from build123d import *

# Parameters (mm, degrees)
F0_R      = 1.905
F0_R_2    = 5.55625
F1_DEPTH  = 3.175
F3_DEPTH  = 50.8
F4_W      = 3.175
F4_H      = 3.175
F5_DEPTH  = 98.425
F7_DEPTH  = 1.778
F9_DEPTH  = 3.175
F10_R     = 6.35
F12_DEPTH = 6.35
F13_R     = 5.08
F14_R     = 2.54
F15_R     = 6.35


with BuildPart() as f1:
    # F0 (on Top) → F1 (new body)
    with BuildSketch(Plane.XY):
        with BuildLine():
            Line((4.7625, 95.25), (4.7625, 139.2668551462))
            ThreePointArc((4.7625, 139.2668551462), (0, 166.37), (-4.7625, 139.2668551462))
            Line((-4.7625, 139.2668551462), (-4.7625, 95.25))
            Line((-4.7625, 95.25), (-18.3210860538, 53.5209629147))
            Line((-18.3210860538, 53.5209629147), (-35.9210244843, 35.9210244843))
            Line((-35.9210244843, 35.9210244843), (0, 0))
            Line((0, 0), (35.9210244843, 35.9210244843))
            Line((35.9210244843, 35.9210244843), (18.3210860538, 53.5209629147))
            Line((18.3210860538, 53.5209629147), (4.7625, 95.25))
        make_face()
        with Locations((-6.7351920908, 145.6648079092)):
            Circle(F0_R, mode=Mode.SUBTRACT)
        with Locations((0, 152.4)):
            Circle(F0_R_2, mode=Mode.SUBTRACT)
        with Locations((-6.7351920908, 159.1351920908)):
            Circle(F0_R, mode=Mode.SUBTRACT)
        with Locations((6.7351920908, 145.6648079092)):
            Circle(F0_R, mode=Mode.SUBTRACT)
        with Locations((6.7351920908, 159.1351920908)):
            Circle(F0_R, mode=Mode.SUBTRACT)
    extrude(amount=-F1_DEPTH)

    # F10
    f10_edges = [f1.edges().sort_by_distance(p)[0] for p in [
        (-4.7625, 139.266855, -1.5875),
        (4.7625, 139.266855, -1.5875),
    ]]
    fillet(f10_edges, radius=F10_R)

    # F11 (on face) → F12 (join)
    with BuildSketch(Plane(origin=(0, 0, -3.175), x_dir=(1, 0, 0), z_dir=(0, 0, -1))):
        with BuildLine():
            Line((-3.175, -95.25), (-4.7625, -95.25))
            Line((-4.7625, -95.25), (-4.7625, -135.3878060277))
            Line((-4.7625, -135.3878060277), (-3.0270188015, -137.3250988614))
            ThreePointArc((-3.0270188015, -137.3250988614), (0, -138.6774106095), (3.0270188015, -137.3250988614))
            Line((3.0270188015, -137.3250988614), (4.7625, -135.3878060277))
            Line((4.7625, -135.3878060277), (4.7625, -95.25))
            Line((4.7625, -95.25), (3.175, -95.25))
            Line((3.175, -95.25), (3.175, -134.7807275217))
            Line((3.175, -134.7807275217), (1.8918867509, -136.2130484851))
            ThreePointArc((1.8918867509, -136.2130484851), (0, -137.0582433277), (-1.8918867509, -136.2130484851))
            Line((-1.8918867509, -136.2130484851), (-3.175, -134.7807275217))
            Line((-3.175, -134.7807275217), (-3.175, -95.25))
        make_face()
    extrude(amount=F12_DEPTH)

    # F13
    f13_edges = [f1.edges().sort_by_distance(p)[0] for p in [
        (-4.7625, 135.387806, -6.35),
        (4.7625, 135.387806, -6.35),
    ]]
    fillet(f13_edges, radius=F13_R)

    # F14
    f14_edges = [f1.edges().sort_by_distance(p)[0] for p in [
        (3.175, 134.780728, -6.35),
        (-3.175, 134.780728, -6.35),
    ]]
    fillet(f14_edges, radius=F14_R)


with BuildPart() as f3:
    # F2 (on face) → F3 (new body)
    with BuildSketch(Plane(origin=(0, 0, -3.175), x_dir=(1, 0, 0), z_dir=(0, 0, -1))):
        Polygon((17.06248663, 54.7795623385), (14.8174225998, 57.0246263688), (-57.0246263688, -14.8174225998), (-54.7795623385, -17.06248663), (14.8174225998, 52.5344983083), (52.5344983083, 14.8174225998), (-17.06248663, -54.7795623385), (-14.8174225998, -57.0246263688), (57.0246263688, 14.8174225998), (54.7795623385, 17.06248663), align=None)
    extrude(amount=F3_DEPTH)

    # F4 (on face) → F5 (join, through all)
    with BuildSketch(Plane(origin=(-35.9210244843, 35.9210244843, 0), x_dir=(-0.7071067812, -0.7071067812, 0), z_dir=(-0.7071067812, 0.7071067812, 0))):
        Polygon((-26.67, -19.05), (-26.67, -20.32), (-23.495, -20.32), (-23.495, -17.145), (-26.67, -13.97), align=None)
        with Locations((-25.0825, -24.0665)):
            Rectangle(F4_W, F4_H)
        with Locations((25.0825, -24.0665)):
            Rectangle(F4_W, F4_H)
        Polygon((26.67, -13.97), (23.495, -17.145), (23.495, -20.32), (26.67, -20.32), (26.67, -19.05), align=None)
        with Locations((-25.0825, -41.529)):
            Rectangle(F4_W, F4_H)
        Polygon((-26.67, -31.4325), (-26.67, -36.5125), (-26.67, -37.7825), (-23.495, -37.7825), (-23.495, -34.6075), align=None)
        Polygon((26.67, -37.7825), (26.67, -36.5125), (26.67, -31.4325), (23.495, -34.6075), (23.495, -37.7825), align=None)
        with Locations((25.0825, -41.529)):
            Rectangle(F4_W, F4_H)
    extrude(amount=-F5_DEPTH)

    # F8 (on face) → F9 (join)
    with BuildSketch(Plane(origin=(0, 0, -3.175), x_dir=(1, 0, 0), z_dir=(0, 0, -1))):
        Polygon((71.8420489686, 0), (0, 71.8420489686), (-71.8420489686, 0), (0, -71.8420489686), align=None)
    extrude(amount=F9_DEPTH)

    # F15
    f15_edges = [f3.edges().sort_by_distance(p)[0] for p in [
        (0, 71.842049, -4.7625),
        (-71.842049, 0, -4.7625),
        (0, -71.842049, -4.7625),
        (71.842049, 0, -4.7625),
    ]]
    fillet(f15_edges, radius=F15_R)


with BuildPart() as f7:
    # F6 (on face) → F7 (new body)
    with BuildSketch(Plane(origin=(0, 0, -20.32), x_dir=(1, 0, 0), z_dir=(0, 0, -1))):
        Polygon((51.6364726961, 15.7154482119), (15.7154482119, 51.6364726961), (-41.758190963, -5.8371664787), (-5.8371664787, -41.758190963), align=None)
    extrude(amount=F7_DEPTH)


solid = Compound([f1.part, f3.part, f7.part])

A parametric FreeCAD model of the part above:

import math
import FreeCAD as App
import Part
import Sketcher
Q = App.Units.Quantity


def edges_at(feature, points):
    """Names of the edges that pass closest to the given points."""
    edges = feature.Shape.Edges
    near = lambda p: min(range(len(edges)), key=lambda i: edges[i].distToShape(Part.Vertex(*p))[0])
    return sorted({f"Edge{near(p) + 1}" for p in points})

doc = App.newDocument("Part")
body = doc.addObject("PartDesign::Body", "Body")

# Sketch on XY plane
sketch1 = body.newObject("Sketcher::SketchObject", "Sketch")
sketch1.AttachmentSupport = (doc.getObject("XY_Plane"), [""])
sketch1.MapMode = "FlatFace"
sketch1.addGeometry([
    Part.LineSegment(App.Vector(4.8, 95.2, 0), App.Vector(4.8, 139.3, 0)),  # 0
    Part.ArcOfCircle(Part.Circle(App.Vector(0, 152.4, 0), App.Vector(0, 0, 1), 14), math.radians(-70), math.radians(250)),  # 1
    Part.LineSegment(App.Vector(-4.8, 139.3, 0), App.Vector(-4.8, 95.2, 0)),  # 2
    Part.LineSegment(App.Vector(-4.8, 95.2, 0), App.Vector(-18.3, 53.5, 0)),  # 3
    Part.LineSegment(App.Vector(-18.3, 53.5, 0), App.Vector(-35.9, 35.9, 0)),  # 4
    Part.LineSegment(App.Vector(-35.9, 35.9, 0), App.Vector(0, 0, 0)),  # 5
    Part.LineSegment(App.Vector(0, 0, 0), App.Vector(35.9, 35.9, 0)),  # 6
    Part.LineSegment(App.Vector(35.9, 35.9, 0), App.Vector(18.3, 53.5, 0)),  # 7
    Part.LineSegment(App.Vector(18.3, 53.5, 0), App.Vector(4.8, 95.2, 0)),  # 8
    Part.Circle(App.Vector(-6.7, 145.7, 0), App.Vector(0, 0, 1), 1.9),  # 9
    Part.Circle(App.Vector(6.7, 145.7, 0), App.Vector(0, 0, 1), 1.9),  # 10
    Part.Circle(App.Vector(-6.7, 159.1, 0), App.Vector(0, 0, 1), 1.9),  # 11
    Part.Circle(App.Vector(0, 152.4, 0), App.Vector(0, 0, 1), 5.6),  # 12
    Part.Circle(App.Vector(6.7, 159.1, 0), App.Vector(0, 0, 1), 1.9),  # 13
], False)
sketch1.addConstraint([
    Sketcher.Constraint("Coincident", 0, 2, 1, 1),
    Sketcher.Constraint("Coincident", 1, 2, 2, 1),
    Sketcher.Constraint("Coincident", 2, 2, 3, 1),
    Sketcher.Constraint("Coincident", 3, 2, 4, 1),
    Sketcher.Constraint("Coincident", 4, 2, 5, 1),
    Sketcher.Constraint("Coincident", 5, 2, 6, 1),
    Sketcher.Constraint("Coincident", 6, 2, 7, 1),
    Sketcher.Constraint("Coincident", 7, 2, 8, 1),
    Sketcher.Constraint("Coincident", 8, 2, 0, 1),
    Sketcher.Constraint("Vertical", 0),
    Sketcher.Constraint("Vertical", 2),
    Sketcher.Constraint("Coincident", 5, 2, -1, 1),
    Sketcher.Constraint("Coincident", 12, 3, 1, 3),
    Sketcher.Constraint("Equal", 9, 10),
    Sketcher.Constraint("Equal", 10, 11),
    Sketcher.Constraint("Equal", 11, 13),
    Sketcher.Constraint("Symmetric", 9, 3, 10, 3, -2),
    Sketcher.Constraint("Symmetric", 11, 3, 13, 3, -2),
    Sketcher.Constraint("Symmetric", 0, 2, 1, 2, -2),
    Sketcher.Constraint("Symmetric", 4, 2, 6, 2, -2),
    Sketcher.Constraint("Symmetric", 3, 2, 7, 2, -2),
    Sketcher.Constraint("Perpendicular", 4, 5),
    Sketcher.Constraint("Perpendicular", 5, 6),
    Sketcher.Constraint("Horizontal", 2, 2, 8, 2),
    Sketcher.Constraint("Vertical", 9, 3, 11, 3),
    Sketcher.Constraint("Diameter", 9, Q("0.15 in")),
    Sketcher.Constraint("Radius", 1, Q("0.55 in")),
    Sketcher.Constraint("Distance", 5, Q("2 in")),
    Sketcher.Constraint("Diameter", 12, Q("0.4375 in")),
    Sketcher.Constraint("DistanceY", -1, 1, 1, 3, Q("6 in")),
    Sketcher.Constraint("Angle", 3, Q("-108 deg")),
    Sketcher.Constraint("DistanceY", -1, 1, 2, 2, Q("3.75 in")),
    Sketcher.Constraint("DistanceX", -1, 1, 0, 2, Q("0.1875 in")),
    Sketcher.Constraint("DistanceX", 3, 2, 10, 3, 25.056278),
    Sketcher.Constraint("DistanceY", -1, 1, 9, 3, 145.664808),
    Sketcher.Constraint("DistanceY", -1, 1, 11, 3, 159.135192),
])
pad1 = body.newObject("PartDesign::Pad", "Pad")
pad1.Profile = sketch1
pad1.Length = Q("0.125 in")
pad1.Reversed = True
doc.recompute()

fillet = body.newObject("PartDesign::Fillet", "Fillet")
fillet.Base = (pad1, edges_at(pad1, [(-4.763, 139.267, -1.587), (4.763, 139.267, -1.587)]))
fillet.Radius = Q("0.25 in")

# Sketch on XY plane
sketch2 = body.newObject("Sketcher::SketchObject", "Sketch001")
sketch2.AttachmentSupport = (doc.getObject("XY_Plane"), [""])
sketch2.MapMode = "FlatFace"
sketch2.AttachmentOffset = App.Placement(App.Vector(0, 0, -0.125 * 25.4), App.Rotation())
sketch2.addGeometry([
    Part.LineSegment(App.Vector(-3.2, 95.2, 0), App.Vector(-4.8, 95.2, 0)),  # 0
    Part.LineSegment(App.Vector(-4.8, 95.2, 0), App.Vector(-4.8, 135.4, 0)),  # 1
    Part.LineSegment(App.Vector(-4.8, 135.4, 0), App.Vector(-3, 137.3, 0)),  # 2
    Part.ArcOfCircle(Part.Circle(App.Vector(0, 134.6, 0), App.Vector(0, 0, 1), 4.1), math.radians(42), math.radians(138)),  # 3
    Part.LineSegment(App.Vector(3, 137.3, 0), App.Vector(4.8, 135.4, 0)),  # 4
    Part.LineSegment(App.Vector(4.8, 135.4, 0), App.Vector(4.8, 95.2, 0)),  # 5
    Part.LineSegment(App.Vector(4.8, 95.2, 0), App.Vector(3.2, 95.2, 0)),  # 6
    Part.LineSegment(App.Vector(3.2, 95.2, 0), App.Vector(3.2, 134.8, 0)),  # 7
    Part.LineSegment(App.Vector(3.2, 134.8, 0), App.Vector(1.9, 136.2, 0)),  # 8
    Part.ArcOfCircle(Part.Circle(App.Vector(0, 134.5, 0), App.Vector(0, 0, 1), 2.5), math.radians(42), math.radians(138)),  # 9
    Part.LineSegment(App.Vector(-1.9, 136.2, 0), App.Vector(-3.2, 134.8, 0)),  # 10
    Part.LineSegment(App.Vector(-3.2, 134.8, 0), App.Vector(-3.2, 95.2, 0)),  # 11
], False)
sketch2.addConstraint([
    Sketcher.Constraint("Coincident", 0, 2, 1, 1),
    Sketcher.Constraint("Coincident", 1, 2, 2, 1),
    Sketcher.Constraint("Tangent", 2, 2, 3, 2),
    Sketcher.Constraint("Tangent", 3, 1, 4, 1),
    Sketcher.Constraint("Coincident", 4, 2, 5, 1),
    Sketcher.Constraint("Coincident", 5, 2, 6, 1),
    Sketcher.Constraint("Coincident", 6, 2, 7, 1),
    Sketcher.Constraint("Coincident", 7, 2, 8, 1),
    Sketcher.Constraint("Tangent", 8, 2, 9, 1),
    Sketcher.Constraint("Tangent", 9, 2, 10, 1),
    Sketcher.Constraint("Coincident", 10, 2, 11, 1),
    Sketcher.Constraint("Coincident", 11, 2, 0, 1),
    Sketcher.Constraint("Horizontal", 0),
    Sketcher.Constraint("Vertical", 1),
    Sketcher.Constraint("Vertical", 5),
    Sketcher.Constraint("Horizontal", 6),
    Sketcher.Constraint("Vertical", 7),
    Sketcher.Constraint("Vertical", 11),
    Sketcher.Constraint("Symmetric", 2, 2, 3, 1, -2),
    Sketcher.Constraint("Symmetric", 0, 2, 5, 2, -2),
    Sketcher.Constraint("Symmetric", 8, 2, 9, 2, -2),
    Sketcher.Constraint("Parallel", 4, 8),
    Sketcher.Constraint("Horizontal", 7, 2, 10, 2),
    Sketcher.Constraint("Radius", 9, Q("0.1 in")),
    Sketcher.Constraint("Radius", 3, Q("0.16 in")),
    Sketcher.Constraint("DistanceX", 0, 2, 0, 1, Q("0.0625 in")),
    Sketcher.Constraint("DistanceY", -1, 1, 0, 2, Q("3.75 in")),
    Sketcher.Constraint("DistanceX", 11, 2, 6, 2, Q("0.25 in")),
    Sketcher.Constraint("Distance", 2, Q("0.1024 in")),
    Sketcher.Constraint("DistanceY", -1, 1, 2, 2, Q("5.4065 in")),
    Sketcher.Constraint("DistanceY", 7, 1, 7, 2, 39.530728),
])
pad2 = body.newObject("PartDesign::Pad", "Pad001")
pad2.Profile = sketch2
pad2.Length = Q("0.25 in")
pad2.Reversed = True
doc.recompute()

fillet2 = body.newObject("PartDesign::Fillet", "Fillet001")
fillet2.Base = (pad2, edges_at(pad2, [(-4.763, 135.388, -6.35), (4.763, 135.388, -6.35)]))
fillet2.Radius = Q("0.2 in")
doc.recompute()

fillet3 = body.newObject("PartDesign::Fillet", "Fillet002")
fillet3.Base = (fillet2, edges_at(fillet2, [(3.175, 134.781, -6.35), (-3.175, 134.781, -6.35)]))
fillet3.Radius = Q("0.1 in")
body2 = doc.addObject("PartDesign::Body", "Body001")

# Sketch on XY plane
sketch3 = body2.newObject("Sketcher::SketchObject", "Sketch002")
sketch3.AttachmentSupport = (doc.getObject("XY_Plane001"), [""])
sketch3.MapMode = "FlatFace"
sketch3.AttachmentOffset = App.Placement(App.Vector(0, 0, -0.125 * 25.4), App.Rotation())
sketch3.addGeometry([
    Part.LineSegment(App.Vector(17.1, -54.8, 0), App.Vector(14.8, -57, 0)),  # 0
    Part.LineSegment(App.Vector(14.8, -57, 0), App.Vector(-57, 14.8, 0)),  # 1
    Part.LineSegment(App.Vector(-57, 14.8, 0), App.Vector(-54.8, 17.1, 0)),  # 2
    Part.LineSegment(App.Vector(-54.8, 17.1, 0), App.Vector(14.8, -52.5, 0)),  # 3
    Part.LineSegment(App.Vector(14.8, -52.5, 0), App.Vector(52.5, -14.8, 0)),  # 4
    Part.LineSegment(App.Vector(52.5, -14.8, 0), App.Vector(-17.1, 54.8, 0)),  # 5
    Part.LineSegment(App.Vector(-17.1, 54.8, 0), App.Vector(-14.8, 57, 0)),  # 6
    Part.LineSegment(App.Vector(-14.8, 57, 0), App.Vector(57, -14.8, 0)),  # 7
    Part.LineSegment(App.Vector(57, -14.8, 0), App.Vector(54.8, -17.1, 0)),  # 8
    Part.LineSegment(App.Vector(54.8, -17.1, 0), App.Vector(17.1, -54.8, 0)),  # 9
], False)
sketch3.addConstraint([
    Sketcher.Constraint("Coincident", 0, 2, 1, 1),
    Sketcher.Constraint("Coincident", 1, 2, 2, 1),
    Sketcher.Constraint("Coincident", 2, 2, 3, 1),
    Sketcher.Constraint("Coincident", 3, 2, 4, 1),
    Sketcher.Constraint("Coincident", 4, 2, 5, 1),
    Sketcher.Constraint("Coincident", 5, 2, 6, 1),
    Sketcher.Constraint("Coincident", 6, 2, 7, 1),
    Sketcher.Constraint("Coincident", 7, 2, 8, 1),
    Sketcher.Constraint("Coincident", 8, 2, 9, 1),
    Sketcher.Constraint("Coincident", 9, 2, 0, 1),
    Sketcher.Constraint("Symmetric", 0, 2, 6, 2, -1, 1),
    Sketcher.Constraint("Symmetric", 1, 2, 7, 2, -1, 1),
    Sketcher.Constraint("Symmetric", 2, 2, 8, 2, -1, 1),
    Sketcher.Constraint("Symmetric", 5, 2, 9, 2, -1, 1),
    Sketcher.Constraint("Perpendicular", 0, 1),
    Sketcher.Constraint("Perpendicular", 1, 2),
    Sketcher.Constraint("Perpendicular", 2, 3),
    Sketcher.Constraint("Perpendicular", 3, 4),
    Sketcher.Constraint("Perpendicular", 4, 5),
    Sketcher.Constraint("Parallel", 8, 9),
    Sketcher.Constraint("Horizontal", 4, 2, 7, 2),
    Sketcher.Constraint("Vertical", 0, 2, 3, 2),
    Sketcher.Constraint("Equal", 0, 2),
    Sketcher.Constraint("Distance", 1, Q("4 in")),
    Sketcher.Constraint("Distance", 4, Q("2.1 in")),
    Sketcher.Constraint("Distance", 0, Q("0.125 in")),
])
pad3 = body2.newObject("PartDesign::Pad", "Pad002")
pad3.Profile = sketch3
pad3.Length = Q("2 in")
pad3.Reversed = True

# Sketch on an angled plane
sketch4 = body2.newObject("Sketcher::SketchObject", "Sketch003")
sketch4.Placement = App.Placement(App.Vector(-35.921024, 35.921024, 0), App.Rotation(App.Vector(-0.707106781, -0.707106781, 0), App.Vector(0, 0, 0.999999999), App.Vector(-0.707106781, 0.707106781, 0), "ZXY"))
sketch4.addGeometry([
    Part.LineSegment(App.Vector(-26.7, -20.3, 0), App.Vector(-23.5, -20.3, 0)),  # 0
    Part.LineSegment(App.Vector(-23.5, -20.3, 0), App.Vector(-23.5, -17.1, 0)),  # 1
    Part.LineSegment(App.Vector(-23.5, -17.1, 0), App.Vector(-26.7, -14, 0)),  # 2
    Part.LineSegment(App.Vector(-26.7, -14, 0), App.Vector(-26.7, -20.3, 0)),  # 3
    Part.LineSegment(App.Vector(-26.7, -22.5, 0), App.Vector(-26.7, -25.7, 0)),  # 4
    Part.LineSegment(App.Vector(-26.7, -25.7, 0), App.Vector(-23.5, -25.7, 0)),  # 5
    Part.LineSegment(App.Vector(-23.5, -25.7, 0), App.Vector(-23.5, -22.5, 0)),  # 6
    Part.LineSegment(App.Vector(-23.5, -22.5, 0), App.Vector(-26.7, -22.5, 0)),  # 7
    Part.LineSegment(App.Vector(23.5, -22.5, 0), App.Vector(23.5, -25.7, 0)),  # 8
    Part.LineSegment(App.Vector(23.5, -25.7, 0), App.Vector(26.7, -25.7, 0)),  # 9
    Part.LineSegment(App.Vector(26.7, -25.7, 0), App.Vector(26.7, -22.5, 0)),  # 10
    Part.LineSegment(App.Vector(26.7, -22.5, 0), App.Vector(23.5, -22.5, 0)),  # 11
    Part.LineSegment(App.Vector(26.7, -14, 0), App.Vector(23.5, -17.1, 0)),  # 12
    Part.LineSegment(App.Vector(23.5, -17.1, 0), App.Vector(23.5, -20.3, 0)),  # 13
    Part.LineSegment(App.Vector(23.5, -20.3, 0), App.Vector(26.7, -20.3, 0)),  # 14
    Part.LineSegment(App.Vector(26.7, -20.3, 0), App.Vector(26.7, -14, 0)),  # 15
    Part.LineSegment(App.Vector(-26.7, -39.9, 0), App.Vector(-26.7, -43.1, 0)),  # 16
    Part.LineSegment(App.Vector(-26.7, -43.1, 0), App.Vector(-23.5, -43.1, 0)),  # 17
    Part.LineSegment(App.Vector(-23.5, -43.1, 0), App.Vector(-23.5, -39.9, 0)),  # 18
    Part.LineSegment(App.Vector(-23.5, -39.9, 0), App.Vector(-26.7, -39.9, 0)),  # 19
    Part.LineSegment(App.Vector(-26.7, -31.4, 0), App.Vector(-26.7, -37.8, 0)),  # 20
    Part.LineSegment(App.Vector(-26.7, -37.8, 0), App.Vector(-23.5, -37.8, 0)),  # 21
    Part.LineSegment(App.Vector(-23.5, -37.8, 0), App.Vector(-23.5, -34.6, 0)),  # 22
    Part.LineSegment(App.Vector(-23.5, -34.6, 0), App.Vector(-26.7, -31.4, 0)),  # 23
    Part.LineSegment(App.Vector(26.7, -37.8, 0), App.Vector(26.7, -31.4, 0)),  # 24
    Part.LineSegment(App.Vector(26.7, -31.4, 0), App.Vector(23.5, -34.6, 0)),  # 25
    Part.LineSegment(App.Vector(23.5, -34.6, 0), App.Vector(23.5, -37.8, 0)),  # 26
    Part.LineSegment(App.Vector(23.5, -37.8, 0), App.Vector(26.7, -37.8, 0)),  # 27
    Part.LineSegment(App.Vector(23.5, -39.9, 0), App.Vector(23.5, -43.1, 0)),  # 28
    Part.LineSegment(App.Vector(23.5, -43.1, 0), App.Vector(26.7, -43.1, 0)),  # 29
    Part.LineSegment(App.Vector(26.7, -43.1, 0), App.Vector(26.7, -39.9, 0)),  # 30
    Part.LineSegment(App.Vector(26.7, -39.9, 0), App.Vector(23.5, -39.9, 0)),  # 31
], False)
sketch4.addConstraint([
    Sketcher.Constraint("Coincident", 0, 2, 1, 1),
    Sketcher.Constraint("Coincident", 1, 2, 2, 1),
    Sketcher.Constraint("Coincident", 2, 2, 3, 1),
    Sketcher.Constraint("Coincident", 3, 2, 0, 1),
    Sketcher.Constraint("Coincident", 4, 2, 5, 1),
    Sketcher.Constraint("Coincident", 5, 2, 6, 1),
    Sketcher.Constraint("Coincident", 6, 2, 7, 1),
    Sketcher.Constraint("Coincident", 7, 2, 4, 1),
    Sketcher.Constraint("Coincident", 8, 2, 9, 1),
    Sketcher.Constraint("Coincident", 9, 2, 10, 1),
    Sketcher.Constraint("Coincident", 10, 2, 11, 1),
    Sketcher.Constraint("Coincident", 11, 2, 8, 1),
    Sketcher.Constraint("Coincident", 12, 2, 13, 1),
    Sketcher.Constraint("Coincident", 13, 2, 14, 1),
    Sketcher.Constraint("Coincident", 14, 2, 15, 1),
    Sketcher.Constraint("Coincident", 15, 2, 12, 1),
    Sketcher.Constraint("Coincident", 16, 2, 17, 1),
    Sketcher.Constraint("Coincident", 17, 2, 18, 1),
    Sketcher.Constraint("Coincident", 18, 2, 19, 1),
    Sketcher.Constraint("Coincident", 19, 2, 16, 1),
    Sketcher.Constraint("Coincident", 20, 2, 21, 1),
    Sketcher.Constraint("Coincident", 21, 2, 22, 1),
    Sketcher.Constraint("Coincident", 22, 2, 23, 1),
    Sketcher.Constraint("Coincident", 23, 2, 20, 1),
    Sketcher.Constraint("Coincident", 24, 2, 25, 1),
    Sketcher.Constraint("Coincident", 25, 2, 26, 1),
    Sketcher.Constraint("Coincident", 26, 2, 27, 1),
    Sketcher.Constraint("Coincident", 27, 2, 24, 1),
    Sketcher.Constraint("Coincident", 28, 2, 29, 1),
    Sketcher.Constraint("Coincident", 29, 2, 30, 1),
    Sketcher.Constraint("Coincident", 30, 2, 31, 1),
    Sketcher.Constraint("Coincident", 31, 2, 28, 1),
    Sketcher.Constraint("Horizontal", 0),
    Sketcher.Constraint("Vertical", 1),
    Sketcher.Constraint("Vertical", 3),
    Sketcher.Constraint("Vertical", 4),
    Sketcher.Constraint("Horizontal", 5),
    Sketcher.Constraint("Vertical", 6),
    Sketcher.Constraint("Horizontal", 7),
    Sketcher.Constraint("Vertical", 8),
    Sketcher.Constraint("Horizontal", 9),
    Sketcher.Constraint("Vertical", 10),
    Sketcher.Constraint("Horizontal", 11),
    Sketcher.Constraint("Vertical", 13),
    Sketcher.Constraint("Horizontal", 14),
    Sketcher.Constraint("Vertical", 15),
    Sketcher.Constraint("Vertical", 16),
    Sketcher.Constraint("Horizontal", 17),
    Sketcher.Constraint("Vertical", 18),
    Sketcher.Constraint("Horizontal", 19),
    Sketcher.Constraint("Vertical", 20),
    Sketcher.Constraint("Horizontal", 21),
    Sketcher.Constraint("Vertical", 22),
    Sketcher.Constraint("Vertical", 24),
    Sketcher.Constraint("Vertical", 26),
    Sketcher.Constraint("Horizontal", 27),
    Sketcher.Constraint("Vertical", 28),
    Sketcher.Constraint("Horizontal", 29),
    Sketcher.Constraint("Vertical", 30),
    Sketcher.Constraint("Horizontal", 31),
    Sketcher.Constraint("Symmetric", 5, 2, 8, 2, -2),
    Sketcher.Constraint("Symmetric", 7, 2, 10, 2, -2),
    Sketcher.Constraint("Symmetric", 1, 2, 12, 2, -2),
    Sketcher.Constraint("Symmetric", 3, 2, 14, 2, -2),
    Sketcher.Constraint("Symmetric", 23, 2, 24, 2, -2),
    Sketcher.Constraint("Symmetric", 22, 2, 25, 2, -2),
    Sketcher.Constraint("Symmetric", 17, 2, 28, 2, -2),
    Sketcher.Constraint("Symmetric", 19, 2, 30, 2, -2),
    Sketcher.Constraint("Perpendicular", 2, 12),
    Sketcher.Constraint("Perpendicular", 12, 23),
    Sketcher.Constraint("Perpendicular", 23, 25),
    Sketcher.Constraint("Horizontal", 21, 2, 26, 2),
    Sketcher.Constraint("Vertical", 3, 2, 4, 2),
    Sketcher.Constraint("Vertical", 1, 2, 5, 2),
    Sketcher.Constraint("Vertical", 7, 2, 16, 2),
    Sketcher.Constraint("Vertical", 6, 2, 17, 2),
    Sketcher.Constraint("Vertical", 19, 2, 20, 2),
    Sketcher.Constraint("Vertical", 18, 2, 21, 2),
    Sketcher.Constraint("Equal", 31, 1),
    Sketcher.Constraint("Equal", 1, 4),
    Sketcher.Constraint("Equal", 13, 16),
    Sketcher.Constraint("Equal", 15, 20),
    Sketcher.Constraint("DistanceY", 3, 2, 3, 1, Q("0.25 in")),
    Sketcher.Constraint("DistanceY", 0, 2, -1, 1, Q("0.8 in")),
    Sketcher.Constraint("DistanceX", 2, 2, -1, 1, Q("1.05 in")),
    Sketcher.Constraint("DistanceY", 4, 2, -1, 1, Q("1.01 in")),
    Sketcher.Constraint("DistanceY", 16, 2, 20, 2, Q("0.21 in")),
    Sketcher.Constraint("DistanceY", 16, 2, 4, 2, Q("0.6875 in")),
])
pad4 = body2.newObject("PartDesign::Pad", "Pad003")
pad4.Profile = sketch4
pad4.Type = "UpToLast"
pad4.Reversed = True

# Sketch on XY plane
sketch5 = body2.newObject("Sketcher::SketchObject", "Sketch004")
sketch5.AttachmentSupport = (doc.getObject("XY_Plane001"), [""])
sketch5.MapMode = "FlatFace"
sketch5.AttachmentOffset = App.Placement(App.Vector(0, 0, -0.125 * 25.4), App.Rotation())
sketch5.addGeometry([
    Part.LineSegment(App.Vector(72, 0, 0), App.Vector(0, -72, 0)),
    Part.LineSegment(App.Vector(0, -72, 0), App.Vector(-72, 0, 0)),
    Part.LineSegment(App.Vector(-72, 0, 0), App.Vector(0, 72, 0)),
    Part.LineSegment(App.Vector(0, 72, 0), App.Vector(72, 0, 0)),
], False)
sketch5.addConstraint([
    Sketcher.Constraint("Coincident", 0, 2, 1, 1),
    Sketcher.Constraint("Coincident", 1, 2, 2, 1),
    Sketcher.Constraint("Coincident", 2, 2, 3, 1),
    Sketcher.Constraint("Coincident", 3, 2, 0, 1),
    Sketcher.Constraint("Symmetric", 0, 2, 2, 2, -1, 1),
    Sketcher.Constraint("Symmetric", 1, 2, 3, 2, -1, 1),
    Sketcher.Constraint("PointOnObject", 0, 2, -2),
    Sketcher.Constraint("PointOnObject", 1, 2, -1),
    Sketcher.Constraint("Perpendicular", 0, 1),
    Sketcher.Constraint("Distance", 0, Q("4 in")),
])
pad5 = body2.newObject("PartDesign::Pad", "Pad004")
pad5.Profile = sketch5
pad5.Length = Q("0.125 in")
pad5.Reversed = True
doc.recompute()

fillet4 = body2.newObject("PartDesign::Fillet", "Fillet003")
fillet4.Base = (pad5, edges_at(pad5, [
    (0, 71.842, -4.763),
    (-71.842, 0, -4.763),
    (0, -71.842, -4.763),
    (71.842, 0, -4.763),
]))
fillet4.Radius = Q("0.25 in")
body3 = doc.addObject("PartDesign::Body", "Body002")

# Sketch on XY plane
sketch6 = body3.newObject("Sketcher::SketchObject", "Sketch005")
sketch6.AttachmentSupport = (doc.getObject("XY_Plane002"), [""])
sketch6.MapMode = "FlatFace"
sketch6.AttachmentOffset = App.Placement(App.Vector(0, 0, -0.8 * 25.4), App.Rotation())
sketch6.addGeometry([
    Part.LineSegment(App.Vector(52, -16, 0), App.Vector(16, -52, 0)),
    Part.LineSegment(App.Vector(16, -52, 0), App.Vector(-42, 6, 0)),
    Part.LineSegment(App.Vector(-42, 6, 0), App.Vector(-6, 42, 0)),
    Part.LineSegment(App.Vector(-6, 42, 0), App.Vector(52, -16, 0)),
], False)
sketch6.addConstraint([
    Sketcher.Constraint("Coincident", 0, 2, 1, 1),
    Sketcher.Constraint("Coincident", 1, 2, 2, 1),
    Sketcher.Constraint("Coincident", 2, 2, 3, 1),
    Sketcher.Constraint("Coincident", 3, 2, 0, 1),
    Sketcher.Constraint("Perpendicular", 0, 1),
    Sketcher.Constraint("Perpendicular", 1, 2),
    Sketcher.Constraint("Perpendicular", 2, 3),
    Sketcher.Constraint("Distance", 0, Q("2 in")),
    Sketcher.Constraint("Angle", 0, Q("-135 deg")),
    Sketcher.Constraint("Distance", 1, Q("3.2 in")),
    Sketcher.Constraint("DistanceX", -1, 1, 0, 2, 15.715448),
    Sketcher.Constraint("DistanceY", -1, 1, 2, 2, 41.758191),
])
pad6 = body3.newObject("PartDesign::Pad", "Pad005")
pad6.Profile = sketch6
pad6.Length = Q("0.07 in")
pad6.Reversed = True

doc.recompute()
